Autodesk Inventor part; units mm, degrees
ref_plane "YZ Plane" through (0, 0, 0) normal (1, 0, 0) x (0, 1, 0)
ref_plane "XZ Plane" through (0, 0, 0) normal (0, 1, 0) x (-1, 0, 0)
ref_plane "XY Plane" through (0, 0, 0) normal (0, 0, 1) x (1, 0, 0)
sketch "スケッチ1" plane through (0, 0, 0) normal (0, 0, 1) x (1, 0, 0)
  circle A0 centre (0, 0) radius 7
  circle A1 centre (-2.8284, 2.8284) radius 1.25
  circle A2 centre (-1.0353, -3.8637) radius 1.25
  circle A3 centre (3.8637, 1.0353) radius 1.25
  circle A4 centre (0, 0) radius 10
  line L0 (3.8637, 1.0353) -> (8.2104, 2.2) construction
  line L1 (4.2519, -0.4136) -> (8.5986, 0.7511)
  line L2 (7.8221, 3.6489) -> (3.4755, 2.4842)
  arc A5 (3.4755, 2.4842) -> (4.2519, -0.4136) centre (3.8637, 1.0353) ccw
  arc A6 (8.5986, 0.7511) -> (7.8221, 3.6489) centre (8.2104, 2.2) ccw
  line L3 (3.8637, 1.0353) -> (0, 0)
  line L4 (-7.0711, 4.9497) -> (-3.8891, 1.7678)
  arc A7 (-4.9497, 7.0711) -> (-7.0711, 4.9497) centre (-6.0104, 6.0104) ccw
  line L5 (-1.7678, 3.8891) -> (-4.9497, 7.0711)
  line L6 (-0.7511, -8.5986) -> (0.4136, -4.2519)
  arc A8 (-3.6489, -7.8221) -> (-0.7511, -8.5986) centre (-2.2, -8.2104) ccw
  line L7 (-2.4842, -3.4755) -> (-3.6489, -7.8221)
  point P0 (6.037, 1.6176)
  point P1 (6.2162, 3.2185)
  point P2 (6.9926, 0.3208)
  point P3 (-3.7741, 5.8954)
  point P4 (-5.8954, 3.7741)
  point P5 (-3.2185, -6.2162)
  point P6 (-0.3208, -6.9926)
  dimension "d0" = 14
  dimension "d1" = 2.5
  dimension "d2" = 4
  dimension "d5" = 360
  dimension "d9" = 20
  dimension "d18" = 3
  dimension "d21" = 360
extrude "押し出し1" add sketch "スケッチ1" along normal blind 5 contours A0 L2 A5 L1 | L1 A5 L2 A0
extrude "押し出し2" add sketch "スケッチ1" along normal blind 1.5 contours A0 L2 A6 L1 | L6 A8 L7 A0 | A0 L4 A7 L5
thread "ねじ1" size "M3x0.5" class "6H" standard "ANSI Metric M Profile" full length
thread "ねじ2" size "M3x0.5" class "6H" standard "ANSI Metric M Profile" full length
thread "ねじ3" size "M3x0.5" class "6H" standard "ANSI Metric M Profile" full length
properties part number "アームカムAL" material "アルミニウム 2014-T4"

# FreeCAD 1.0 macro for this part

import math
import FreeCAD as App
import Part
import Sketcher

V = App.Vector
Q = App.Units.Quantity

doc = App.newDocument("Part")
body = doc.addObject("PartDesign::Body", "Body")

sketch1 = doc.addObject("Sketcher::SketchObject", "Sketch")
body.addObject(sketch1)
sketch1.AttachmentSupport = (doc.XY_Plane, [""])
sketch1.MapMode = "FlatFace"
sketch1.addGeometry(Part.Circle(V(0, 0, 0), V(0, 0, 1), 7), False)
sketch1.addGeometry(Part.Circle(V(-1, -3.9, 0), V(0, 0, 1), 1.2), False)
sketch1.addGeometry(Part.Circle(V(-2.8, 2.8, 0), V(0, 0, 1), 1.2), False)
sketch1.addGeometry(Part.Circle(V(3.9, 1, 0), V(0, 0, 1), 1.2), False)
sketch1.addConstraint(Sketcher.Constraint("Coincident", 0, 3, -1, 1))
sketch1.addConstraint(Sketcher.Constraint("Equal", 1, 2))
sketch1.addConstraint(Sketcher.Constraint("Equal", 2, 3))
sketch1.addConstraint(Sketcher.Constraint("Diameter", 0, Q("14 mm")))
sketch1.addConstraint(Sketcher.Constraint("Diameter", 1, Q("2.5 mm")))
sketch1.addConstraint(Sketcher.Constraint("DistanceX", 2, 3, 1, 3, Q("1.793 mm")))
sketch1.addConstraint(Sketcher.Constraint("DistanceY", 1, 3, 2, 3, Q("6.692 mm")))
sketch1.addConstraint(Sketcher.Constraint("DistanceX", 2, 3, 3, 3, Q("6.692 mm")))
sketch1.addConstraint(Sketcher.Constraint("DistanceY", 3, 3, 2, 3, Q("1.793 mm")))
sketch1.addConstraint(Sketcher.Constraint("DistanceX", 1, 3, -1, 1, Q("1.0353 mm")))
sketch1.addConstraint(Sketcher.Constraint("DistanceY", 1, 3, -1, 1, Q("3.8637 mm")))
pad1 = doc.addObject("PartDesign::Pad", "Pad")
body.addObject(pad1)
pad1.Profile = sketch1
pad1.Length = 5

sketch2 = doc.addObject("Sketcher::SketchObject", "Sketch001")
body.addObject(sketch2)
sketch2.AttachmentSupport = (doc.XY_Plane, [""])
sketch2.MapMode = "FlatFace"
sketch2.addGeometry(Part.ArcOfCircle(Part.Circle(V(0, 0, 0), V(0, 0, 1), 7), math.radians(3), math.radians(27)), False)
sketch2.addGeometry(Part.LineSegment(V(7, 0.3, 0), V(8.6, 0.8, 0)), False)
sketch2.addGeometry(Part.ArcOfCircle(Part.Circle(V(8.2, 2.2, 0), V(0, 0, 1), 1.5), math.radians(-75), math.radians(105)), False)
sketch2.addGeometry(Part.LineSegment(V(7.8, 3.6, 0), V(6.2, 3.2, 0)), False)
sketch2.addGeometry(Part.LineSegment(V(-0.8, -8.6, 0), V(-0.3, -7, 0)), False)
sketch2.addGeometry(Part.ArcOfCircle(Part.Circle(V(0, 0, 0), V(0, 0, 1), 7), math.radians(-117), math.radians(-93)), False)
sketch2.addGeometry(Part.LineSegment(V(-3.2, -6.2, 0), V(-3.6, -7.8, 0)), False)
sketch2.addGeometry(Part.ArcOfCircle(Part.Circle(V(-2.2, -8.2, 0), V(0, 0, 1), 1.5), math.radians(165), math.radians(345)), False)
sketch2.addGeometry(Part.ArcOfCircle(Part.Circle(V(0, 0, 0), V(0, 0, 1), 7), math.radians(123), math.radians(147)), False)
sketch2.addGeometry(Part.LineSegment(V(-3.8, 5.9, 0), V(-4.9, 7.1, 0)), False)
sketch2.addGeometry(Part.ArcOfCircle(Part.Circle(V(-6, 6, 0), V(0, 0, 1), 1.5), math.radians(45), math.radians(225)), False)
sketch2.addGeometry(Part.LineSegment(V(-7.1, 4.9, 0), V(-5.9, 3.8, 0)), False)
sketch2.addConstraint(Sketcher.Constraint("Coincident", 0, 1, 1, 1))
sketch2.addConstraint(Sketcher.Constraint("Tangent", 1, 2, 2, 1))
sketch2.addConstraint(Sketcher.Constraint("Tangent", 2, 2, 3, 1))
sketch2.addConstraint(Sketcher.Constraint("Coincident", 3, 2, 0, 2))
sketch2.addConstraint(Sketcher.Constraint("Coincident", 4, 2, 5, 2))
sketch2.addConstraint(Sketcher.Constraint("Coincident", 5, 1, 6, 1))
sketch2.addConstraint(Sketcher.Constraint("Tangent", 6, 2, 7, 1))
sketch2.addConstraint(Sketcher.Constraint("Tangent", 7, 2, 4, 1))
sketch2.addConstraint(Sketcher.Constraint("Coincident", 8, 1, 9, 1))
sketch2.addConstraint(Sketcher.Constraint("Tangent", 9, 2, 10, 1))
sketch2.addConstraint(Sketcher.Constraint("Tangent", 10, 2, 11, 1))
sketch2.addConstraint(Sketcher.Constraint("Coincident", 11, 2, 8, 2))
sketch2.addConstraint(Sketcher.Constraint("Coincident", 0, 3, -1, 1))
sketch2.addConstraint(Sketcher.Constraint("Coincident", 5, 3, -1, 1))
sketch2.addConstraint(Sketcher.Constraint("Coincident", 8, 3, -1, 1))
sketch2.addConstraint(Sketcher.Constraint("Equal", 0, 5))
sketch2.addConstraint(Sketcher.Constraint("Equal", 2, 7))
sketch2.addConstraint(Sketcher.Constraint("Equal", 5, 8))
sketch2.addConstraint(Sketcher.Constraint("Equal", 7, 10))
sketch2.addConstraint(Sketcher.Constraint("Parallel", 1, 3))
sketch2.addConstraint(Sketcher.Constraint("Parallel", 4, 6))
sketch2.addConstraint(Sketcher.Constraint("Parallel", 9, 11))
sketch2.addConstraint(Sketcher.Constraint("Equal", 1, 3))
sketch2.addConstraint(Sketcher.Constraint("Equal", 3, 4))
sketch2.addConstraint(Sketcher.Constraint("Equal", 4, 6))
sketch2.addConstraint(Sketcher.Constraint("Equal", 6, 9))
sketch2.addConstraint(Sketcher.Constraint("Equal", 9, 11))
sketch2.addConstraint(Sketcher.Constraint("Radius", 0, Q("7 mm")))
sketch2.addConstraint(Sketcher.Constraint("Radius", 2, Q("1.5 mm")))
sketch2.addConstraint(Sketcher.Constraint("Angle", 1, Q("15 deg")))
sketch2.addConstraint(Sketcher.Constraint("Angle", 4, Q("75 deg")))
sketch2.addConstraint(Sketcher.Constraint("Angle", 9, Q("134.999 deg")))
sketch2.addConstraint(Sketcher.Constraint("DistanceY", -1, 1, 2, 3, Q("2.2 mm")))
pad2 = doc.addObject("PartDesign::Pad", "Pad001")
body.addObject(pad2)
pad2.Profile = sketch2
pad2.Length = 1.5

doc.recompute()
